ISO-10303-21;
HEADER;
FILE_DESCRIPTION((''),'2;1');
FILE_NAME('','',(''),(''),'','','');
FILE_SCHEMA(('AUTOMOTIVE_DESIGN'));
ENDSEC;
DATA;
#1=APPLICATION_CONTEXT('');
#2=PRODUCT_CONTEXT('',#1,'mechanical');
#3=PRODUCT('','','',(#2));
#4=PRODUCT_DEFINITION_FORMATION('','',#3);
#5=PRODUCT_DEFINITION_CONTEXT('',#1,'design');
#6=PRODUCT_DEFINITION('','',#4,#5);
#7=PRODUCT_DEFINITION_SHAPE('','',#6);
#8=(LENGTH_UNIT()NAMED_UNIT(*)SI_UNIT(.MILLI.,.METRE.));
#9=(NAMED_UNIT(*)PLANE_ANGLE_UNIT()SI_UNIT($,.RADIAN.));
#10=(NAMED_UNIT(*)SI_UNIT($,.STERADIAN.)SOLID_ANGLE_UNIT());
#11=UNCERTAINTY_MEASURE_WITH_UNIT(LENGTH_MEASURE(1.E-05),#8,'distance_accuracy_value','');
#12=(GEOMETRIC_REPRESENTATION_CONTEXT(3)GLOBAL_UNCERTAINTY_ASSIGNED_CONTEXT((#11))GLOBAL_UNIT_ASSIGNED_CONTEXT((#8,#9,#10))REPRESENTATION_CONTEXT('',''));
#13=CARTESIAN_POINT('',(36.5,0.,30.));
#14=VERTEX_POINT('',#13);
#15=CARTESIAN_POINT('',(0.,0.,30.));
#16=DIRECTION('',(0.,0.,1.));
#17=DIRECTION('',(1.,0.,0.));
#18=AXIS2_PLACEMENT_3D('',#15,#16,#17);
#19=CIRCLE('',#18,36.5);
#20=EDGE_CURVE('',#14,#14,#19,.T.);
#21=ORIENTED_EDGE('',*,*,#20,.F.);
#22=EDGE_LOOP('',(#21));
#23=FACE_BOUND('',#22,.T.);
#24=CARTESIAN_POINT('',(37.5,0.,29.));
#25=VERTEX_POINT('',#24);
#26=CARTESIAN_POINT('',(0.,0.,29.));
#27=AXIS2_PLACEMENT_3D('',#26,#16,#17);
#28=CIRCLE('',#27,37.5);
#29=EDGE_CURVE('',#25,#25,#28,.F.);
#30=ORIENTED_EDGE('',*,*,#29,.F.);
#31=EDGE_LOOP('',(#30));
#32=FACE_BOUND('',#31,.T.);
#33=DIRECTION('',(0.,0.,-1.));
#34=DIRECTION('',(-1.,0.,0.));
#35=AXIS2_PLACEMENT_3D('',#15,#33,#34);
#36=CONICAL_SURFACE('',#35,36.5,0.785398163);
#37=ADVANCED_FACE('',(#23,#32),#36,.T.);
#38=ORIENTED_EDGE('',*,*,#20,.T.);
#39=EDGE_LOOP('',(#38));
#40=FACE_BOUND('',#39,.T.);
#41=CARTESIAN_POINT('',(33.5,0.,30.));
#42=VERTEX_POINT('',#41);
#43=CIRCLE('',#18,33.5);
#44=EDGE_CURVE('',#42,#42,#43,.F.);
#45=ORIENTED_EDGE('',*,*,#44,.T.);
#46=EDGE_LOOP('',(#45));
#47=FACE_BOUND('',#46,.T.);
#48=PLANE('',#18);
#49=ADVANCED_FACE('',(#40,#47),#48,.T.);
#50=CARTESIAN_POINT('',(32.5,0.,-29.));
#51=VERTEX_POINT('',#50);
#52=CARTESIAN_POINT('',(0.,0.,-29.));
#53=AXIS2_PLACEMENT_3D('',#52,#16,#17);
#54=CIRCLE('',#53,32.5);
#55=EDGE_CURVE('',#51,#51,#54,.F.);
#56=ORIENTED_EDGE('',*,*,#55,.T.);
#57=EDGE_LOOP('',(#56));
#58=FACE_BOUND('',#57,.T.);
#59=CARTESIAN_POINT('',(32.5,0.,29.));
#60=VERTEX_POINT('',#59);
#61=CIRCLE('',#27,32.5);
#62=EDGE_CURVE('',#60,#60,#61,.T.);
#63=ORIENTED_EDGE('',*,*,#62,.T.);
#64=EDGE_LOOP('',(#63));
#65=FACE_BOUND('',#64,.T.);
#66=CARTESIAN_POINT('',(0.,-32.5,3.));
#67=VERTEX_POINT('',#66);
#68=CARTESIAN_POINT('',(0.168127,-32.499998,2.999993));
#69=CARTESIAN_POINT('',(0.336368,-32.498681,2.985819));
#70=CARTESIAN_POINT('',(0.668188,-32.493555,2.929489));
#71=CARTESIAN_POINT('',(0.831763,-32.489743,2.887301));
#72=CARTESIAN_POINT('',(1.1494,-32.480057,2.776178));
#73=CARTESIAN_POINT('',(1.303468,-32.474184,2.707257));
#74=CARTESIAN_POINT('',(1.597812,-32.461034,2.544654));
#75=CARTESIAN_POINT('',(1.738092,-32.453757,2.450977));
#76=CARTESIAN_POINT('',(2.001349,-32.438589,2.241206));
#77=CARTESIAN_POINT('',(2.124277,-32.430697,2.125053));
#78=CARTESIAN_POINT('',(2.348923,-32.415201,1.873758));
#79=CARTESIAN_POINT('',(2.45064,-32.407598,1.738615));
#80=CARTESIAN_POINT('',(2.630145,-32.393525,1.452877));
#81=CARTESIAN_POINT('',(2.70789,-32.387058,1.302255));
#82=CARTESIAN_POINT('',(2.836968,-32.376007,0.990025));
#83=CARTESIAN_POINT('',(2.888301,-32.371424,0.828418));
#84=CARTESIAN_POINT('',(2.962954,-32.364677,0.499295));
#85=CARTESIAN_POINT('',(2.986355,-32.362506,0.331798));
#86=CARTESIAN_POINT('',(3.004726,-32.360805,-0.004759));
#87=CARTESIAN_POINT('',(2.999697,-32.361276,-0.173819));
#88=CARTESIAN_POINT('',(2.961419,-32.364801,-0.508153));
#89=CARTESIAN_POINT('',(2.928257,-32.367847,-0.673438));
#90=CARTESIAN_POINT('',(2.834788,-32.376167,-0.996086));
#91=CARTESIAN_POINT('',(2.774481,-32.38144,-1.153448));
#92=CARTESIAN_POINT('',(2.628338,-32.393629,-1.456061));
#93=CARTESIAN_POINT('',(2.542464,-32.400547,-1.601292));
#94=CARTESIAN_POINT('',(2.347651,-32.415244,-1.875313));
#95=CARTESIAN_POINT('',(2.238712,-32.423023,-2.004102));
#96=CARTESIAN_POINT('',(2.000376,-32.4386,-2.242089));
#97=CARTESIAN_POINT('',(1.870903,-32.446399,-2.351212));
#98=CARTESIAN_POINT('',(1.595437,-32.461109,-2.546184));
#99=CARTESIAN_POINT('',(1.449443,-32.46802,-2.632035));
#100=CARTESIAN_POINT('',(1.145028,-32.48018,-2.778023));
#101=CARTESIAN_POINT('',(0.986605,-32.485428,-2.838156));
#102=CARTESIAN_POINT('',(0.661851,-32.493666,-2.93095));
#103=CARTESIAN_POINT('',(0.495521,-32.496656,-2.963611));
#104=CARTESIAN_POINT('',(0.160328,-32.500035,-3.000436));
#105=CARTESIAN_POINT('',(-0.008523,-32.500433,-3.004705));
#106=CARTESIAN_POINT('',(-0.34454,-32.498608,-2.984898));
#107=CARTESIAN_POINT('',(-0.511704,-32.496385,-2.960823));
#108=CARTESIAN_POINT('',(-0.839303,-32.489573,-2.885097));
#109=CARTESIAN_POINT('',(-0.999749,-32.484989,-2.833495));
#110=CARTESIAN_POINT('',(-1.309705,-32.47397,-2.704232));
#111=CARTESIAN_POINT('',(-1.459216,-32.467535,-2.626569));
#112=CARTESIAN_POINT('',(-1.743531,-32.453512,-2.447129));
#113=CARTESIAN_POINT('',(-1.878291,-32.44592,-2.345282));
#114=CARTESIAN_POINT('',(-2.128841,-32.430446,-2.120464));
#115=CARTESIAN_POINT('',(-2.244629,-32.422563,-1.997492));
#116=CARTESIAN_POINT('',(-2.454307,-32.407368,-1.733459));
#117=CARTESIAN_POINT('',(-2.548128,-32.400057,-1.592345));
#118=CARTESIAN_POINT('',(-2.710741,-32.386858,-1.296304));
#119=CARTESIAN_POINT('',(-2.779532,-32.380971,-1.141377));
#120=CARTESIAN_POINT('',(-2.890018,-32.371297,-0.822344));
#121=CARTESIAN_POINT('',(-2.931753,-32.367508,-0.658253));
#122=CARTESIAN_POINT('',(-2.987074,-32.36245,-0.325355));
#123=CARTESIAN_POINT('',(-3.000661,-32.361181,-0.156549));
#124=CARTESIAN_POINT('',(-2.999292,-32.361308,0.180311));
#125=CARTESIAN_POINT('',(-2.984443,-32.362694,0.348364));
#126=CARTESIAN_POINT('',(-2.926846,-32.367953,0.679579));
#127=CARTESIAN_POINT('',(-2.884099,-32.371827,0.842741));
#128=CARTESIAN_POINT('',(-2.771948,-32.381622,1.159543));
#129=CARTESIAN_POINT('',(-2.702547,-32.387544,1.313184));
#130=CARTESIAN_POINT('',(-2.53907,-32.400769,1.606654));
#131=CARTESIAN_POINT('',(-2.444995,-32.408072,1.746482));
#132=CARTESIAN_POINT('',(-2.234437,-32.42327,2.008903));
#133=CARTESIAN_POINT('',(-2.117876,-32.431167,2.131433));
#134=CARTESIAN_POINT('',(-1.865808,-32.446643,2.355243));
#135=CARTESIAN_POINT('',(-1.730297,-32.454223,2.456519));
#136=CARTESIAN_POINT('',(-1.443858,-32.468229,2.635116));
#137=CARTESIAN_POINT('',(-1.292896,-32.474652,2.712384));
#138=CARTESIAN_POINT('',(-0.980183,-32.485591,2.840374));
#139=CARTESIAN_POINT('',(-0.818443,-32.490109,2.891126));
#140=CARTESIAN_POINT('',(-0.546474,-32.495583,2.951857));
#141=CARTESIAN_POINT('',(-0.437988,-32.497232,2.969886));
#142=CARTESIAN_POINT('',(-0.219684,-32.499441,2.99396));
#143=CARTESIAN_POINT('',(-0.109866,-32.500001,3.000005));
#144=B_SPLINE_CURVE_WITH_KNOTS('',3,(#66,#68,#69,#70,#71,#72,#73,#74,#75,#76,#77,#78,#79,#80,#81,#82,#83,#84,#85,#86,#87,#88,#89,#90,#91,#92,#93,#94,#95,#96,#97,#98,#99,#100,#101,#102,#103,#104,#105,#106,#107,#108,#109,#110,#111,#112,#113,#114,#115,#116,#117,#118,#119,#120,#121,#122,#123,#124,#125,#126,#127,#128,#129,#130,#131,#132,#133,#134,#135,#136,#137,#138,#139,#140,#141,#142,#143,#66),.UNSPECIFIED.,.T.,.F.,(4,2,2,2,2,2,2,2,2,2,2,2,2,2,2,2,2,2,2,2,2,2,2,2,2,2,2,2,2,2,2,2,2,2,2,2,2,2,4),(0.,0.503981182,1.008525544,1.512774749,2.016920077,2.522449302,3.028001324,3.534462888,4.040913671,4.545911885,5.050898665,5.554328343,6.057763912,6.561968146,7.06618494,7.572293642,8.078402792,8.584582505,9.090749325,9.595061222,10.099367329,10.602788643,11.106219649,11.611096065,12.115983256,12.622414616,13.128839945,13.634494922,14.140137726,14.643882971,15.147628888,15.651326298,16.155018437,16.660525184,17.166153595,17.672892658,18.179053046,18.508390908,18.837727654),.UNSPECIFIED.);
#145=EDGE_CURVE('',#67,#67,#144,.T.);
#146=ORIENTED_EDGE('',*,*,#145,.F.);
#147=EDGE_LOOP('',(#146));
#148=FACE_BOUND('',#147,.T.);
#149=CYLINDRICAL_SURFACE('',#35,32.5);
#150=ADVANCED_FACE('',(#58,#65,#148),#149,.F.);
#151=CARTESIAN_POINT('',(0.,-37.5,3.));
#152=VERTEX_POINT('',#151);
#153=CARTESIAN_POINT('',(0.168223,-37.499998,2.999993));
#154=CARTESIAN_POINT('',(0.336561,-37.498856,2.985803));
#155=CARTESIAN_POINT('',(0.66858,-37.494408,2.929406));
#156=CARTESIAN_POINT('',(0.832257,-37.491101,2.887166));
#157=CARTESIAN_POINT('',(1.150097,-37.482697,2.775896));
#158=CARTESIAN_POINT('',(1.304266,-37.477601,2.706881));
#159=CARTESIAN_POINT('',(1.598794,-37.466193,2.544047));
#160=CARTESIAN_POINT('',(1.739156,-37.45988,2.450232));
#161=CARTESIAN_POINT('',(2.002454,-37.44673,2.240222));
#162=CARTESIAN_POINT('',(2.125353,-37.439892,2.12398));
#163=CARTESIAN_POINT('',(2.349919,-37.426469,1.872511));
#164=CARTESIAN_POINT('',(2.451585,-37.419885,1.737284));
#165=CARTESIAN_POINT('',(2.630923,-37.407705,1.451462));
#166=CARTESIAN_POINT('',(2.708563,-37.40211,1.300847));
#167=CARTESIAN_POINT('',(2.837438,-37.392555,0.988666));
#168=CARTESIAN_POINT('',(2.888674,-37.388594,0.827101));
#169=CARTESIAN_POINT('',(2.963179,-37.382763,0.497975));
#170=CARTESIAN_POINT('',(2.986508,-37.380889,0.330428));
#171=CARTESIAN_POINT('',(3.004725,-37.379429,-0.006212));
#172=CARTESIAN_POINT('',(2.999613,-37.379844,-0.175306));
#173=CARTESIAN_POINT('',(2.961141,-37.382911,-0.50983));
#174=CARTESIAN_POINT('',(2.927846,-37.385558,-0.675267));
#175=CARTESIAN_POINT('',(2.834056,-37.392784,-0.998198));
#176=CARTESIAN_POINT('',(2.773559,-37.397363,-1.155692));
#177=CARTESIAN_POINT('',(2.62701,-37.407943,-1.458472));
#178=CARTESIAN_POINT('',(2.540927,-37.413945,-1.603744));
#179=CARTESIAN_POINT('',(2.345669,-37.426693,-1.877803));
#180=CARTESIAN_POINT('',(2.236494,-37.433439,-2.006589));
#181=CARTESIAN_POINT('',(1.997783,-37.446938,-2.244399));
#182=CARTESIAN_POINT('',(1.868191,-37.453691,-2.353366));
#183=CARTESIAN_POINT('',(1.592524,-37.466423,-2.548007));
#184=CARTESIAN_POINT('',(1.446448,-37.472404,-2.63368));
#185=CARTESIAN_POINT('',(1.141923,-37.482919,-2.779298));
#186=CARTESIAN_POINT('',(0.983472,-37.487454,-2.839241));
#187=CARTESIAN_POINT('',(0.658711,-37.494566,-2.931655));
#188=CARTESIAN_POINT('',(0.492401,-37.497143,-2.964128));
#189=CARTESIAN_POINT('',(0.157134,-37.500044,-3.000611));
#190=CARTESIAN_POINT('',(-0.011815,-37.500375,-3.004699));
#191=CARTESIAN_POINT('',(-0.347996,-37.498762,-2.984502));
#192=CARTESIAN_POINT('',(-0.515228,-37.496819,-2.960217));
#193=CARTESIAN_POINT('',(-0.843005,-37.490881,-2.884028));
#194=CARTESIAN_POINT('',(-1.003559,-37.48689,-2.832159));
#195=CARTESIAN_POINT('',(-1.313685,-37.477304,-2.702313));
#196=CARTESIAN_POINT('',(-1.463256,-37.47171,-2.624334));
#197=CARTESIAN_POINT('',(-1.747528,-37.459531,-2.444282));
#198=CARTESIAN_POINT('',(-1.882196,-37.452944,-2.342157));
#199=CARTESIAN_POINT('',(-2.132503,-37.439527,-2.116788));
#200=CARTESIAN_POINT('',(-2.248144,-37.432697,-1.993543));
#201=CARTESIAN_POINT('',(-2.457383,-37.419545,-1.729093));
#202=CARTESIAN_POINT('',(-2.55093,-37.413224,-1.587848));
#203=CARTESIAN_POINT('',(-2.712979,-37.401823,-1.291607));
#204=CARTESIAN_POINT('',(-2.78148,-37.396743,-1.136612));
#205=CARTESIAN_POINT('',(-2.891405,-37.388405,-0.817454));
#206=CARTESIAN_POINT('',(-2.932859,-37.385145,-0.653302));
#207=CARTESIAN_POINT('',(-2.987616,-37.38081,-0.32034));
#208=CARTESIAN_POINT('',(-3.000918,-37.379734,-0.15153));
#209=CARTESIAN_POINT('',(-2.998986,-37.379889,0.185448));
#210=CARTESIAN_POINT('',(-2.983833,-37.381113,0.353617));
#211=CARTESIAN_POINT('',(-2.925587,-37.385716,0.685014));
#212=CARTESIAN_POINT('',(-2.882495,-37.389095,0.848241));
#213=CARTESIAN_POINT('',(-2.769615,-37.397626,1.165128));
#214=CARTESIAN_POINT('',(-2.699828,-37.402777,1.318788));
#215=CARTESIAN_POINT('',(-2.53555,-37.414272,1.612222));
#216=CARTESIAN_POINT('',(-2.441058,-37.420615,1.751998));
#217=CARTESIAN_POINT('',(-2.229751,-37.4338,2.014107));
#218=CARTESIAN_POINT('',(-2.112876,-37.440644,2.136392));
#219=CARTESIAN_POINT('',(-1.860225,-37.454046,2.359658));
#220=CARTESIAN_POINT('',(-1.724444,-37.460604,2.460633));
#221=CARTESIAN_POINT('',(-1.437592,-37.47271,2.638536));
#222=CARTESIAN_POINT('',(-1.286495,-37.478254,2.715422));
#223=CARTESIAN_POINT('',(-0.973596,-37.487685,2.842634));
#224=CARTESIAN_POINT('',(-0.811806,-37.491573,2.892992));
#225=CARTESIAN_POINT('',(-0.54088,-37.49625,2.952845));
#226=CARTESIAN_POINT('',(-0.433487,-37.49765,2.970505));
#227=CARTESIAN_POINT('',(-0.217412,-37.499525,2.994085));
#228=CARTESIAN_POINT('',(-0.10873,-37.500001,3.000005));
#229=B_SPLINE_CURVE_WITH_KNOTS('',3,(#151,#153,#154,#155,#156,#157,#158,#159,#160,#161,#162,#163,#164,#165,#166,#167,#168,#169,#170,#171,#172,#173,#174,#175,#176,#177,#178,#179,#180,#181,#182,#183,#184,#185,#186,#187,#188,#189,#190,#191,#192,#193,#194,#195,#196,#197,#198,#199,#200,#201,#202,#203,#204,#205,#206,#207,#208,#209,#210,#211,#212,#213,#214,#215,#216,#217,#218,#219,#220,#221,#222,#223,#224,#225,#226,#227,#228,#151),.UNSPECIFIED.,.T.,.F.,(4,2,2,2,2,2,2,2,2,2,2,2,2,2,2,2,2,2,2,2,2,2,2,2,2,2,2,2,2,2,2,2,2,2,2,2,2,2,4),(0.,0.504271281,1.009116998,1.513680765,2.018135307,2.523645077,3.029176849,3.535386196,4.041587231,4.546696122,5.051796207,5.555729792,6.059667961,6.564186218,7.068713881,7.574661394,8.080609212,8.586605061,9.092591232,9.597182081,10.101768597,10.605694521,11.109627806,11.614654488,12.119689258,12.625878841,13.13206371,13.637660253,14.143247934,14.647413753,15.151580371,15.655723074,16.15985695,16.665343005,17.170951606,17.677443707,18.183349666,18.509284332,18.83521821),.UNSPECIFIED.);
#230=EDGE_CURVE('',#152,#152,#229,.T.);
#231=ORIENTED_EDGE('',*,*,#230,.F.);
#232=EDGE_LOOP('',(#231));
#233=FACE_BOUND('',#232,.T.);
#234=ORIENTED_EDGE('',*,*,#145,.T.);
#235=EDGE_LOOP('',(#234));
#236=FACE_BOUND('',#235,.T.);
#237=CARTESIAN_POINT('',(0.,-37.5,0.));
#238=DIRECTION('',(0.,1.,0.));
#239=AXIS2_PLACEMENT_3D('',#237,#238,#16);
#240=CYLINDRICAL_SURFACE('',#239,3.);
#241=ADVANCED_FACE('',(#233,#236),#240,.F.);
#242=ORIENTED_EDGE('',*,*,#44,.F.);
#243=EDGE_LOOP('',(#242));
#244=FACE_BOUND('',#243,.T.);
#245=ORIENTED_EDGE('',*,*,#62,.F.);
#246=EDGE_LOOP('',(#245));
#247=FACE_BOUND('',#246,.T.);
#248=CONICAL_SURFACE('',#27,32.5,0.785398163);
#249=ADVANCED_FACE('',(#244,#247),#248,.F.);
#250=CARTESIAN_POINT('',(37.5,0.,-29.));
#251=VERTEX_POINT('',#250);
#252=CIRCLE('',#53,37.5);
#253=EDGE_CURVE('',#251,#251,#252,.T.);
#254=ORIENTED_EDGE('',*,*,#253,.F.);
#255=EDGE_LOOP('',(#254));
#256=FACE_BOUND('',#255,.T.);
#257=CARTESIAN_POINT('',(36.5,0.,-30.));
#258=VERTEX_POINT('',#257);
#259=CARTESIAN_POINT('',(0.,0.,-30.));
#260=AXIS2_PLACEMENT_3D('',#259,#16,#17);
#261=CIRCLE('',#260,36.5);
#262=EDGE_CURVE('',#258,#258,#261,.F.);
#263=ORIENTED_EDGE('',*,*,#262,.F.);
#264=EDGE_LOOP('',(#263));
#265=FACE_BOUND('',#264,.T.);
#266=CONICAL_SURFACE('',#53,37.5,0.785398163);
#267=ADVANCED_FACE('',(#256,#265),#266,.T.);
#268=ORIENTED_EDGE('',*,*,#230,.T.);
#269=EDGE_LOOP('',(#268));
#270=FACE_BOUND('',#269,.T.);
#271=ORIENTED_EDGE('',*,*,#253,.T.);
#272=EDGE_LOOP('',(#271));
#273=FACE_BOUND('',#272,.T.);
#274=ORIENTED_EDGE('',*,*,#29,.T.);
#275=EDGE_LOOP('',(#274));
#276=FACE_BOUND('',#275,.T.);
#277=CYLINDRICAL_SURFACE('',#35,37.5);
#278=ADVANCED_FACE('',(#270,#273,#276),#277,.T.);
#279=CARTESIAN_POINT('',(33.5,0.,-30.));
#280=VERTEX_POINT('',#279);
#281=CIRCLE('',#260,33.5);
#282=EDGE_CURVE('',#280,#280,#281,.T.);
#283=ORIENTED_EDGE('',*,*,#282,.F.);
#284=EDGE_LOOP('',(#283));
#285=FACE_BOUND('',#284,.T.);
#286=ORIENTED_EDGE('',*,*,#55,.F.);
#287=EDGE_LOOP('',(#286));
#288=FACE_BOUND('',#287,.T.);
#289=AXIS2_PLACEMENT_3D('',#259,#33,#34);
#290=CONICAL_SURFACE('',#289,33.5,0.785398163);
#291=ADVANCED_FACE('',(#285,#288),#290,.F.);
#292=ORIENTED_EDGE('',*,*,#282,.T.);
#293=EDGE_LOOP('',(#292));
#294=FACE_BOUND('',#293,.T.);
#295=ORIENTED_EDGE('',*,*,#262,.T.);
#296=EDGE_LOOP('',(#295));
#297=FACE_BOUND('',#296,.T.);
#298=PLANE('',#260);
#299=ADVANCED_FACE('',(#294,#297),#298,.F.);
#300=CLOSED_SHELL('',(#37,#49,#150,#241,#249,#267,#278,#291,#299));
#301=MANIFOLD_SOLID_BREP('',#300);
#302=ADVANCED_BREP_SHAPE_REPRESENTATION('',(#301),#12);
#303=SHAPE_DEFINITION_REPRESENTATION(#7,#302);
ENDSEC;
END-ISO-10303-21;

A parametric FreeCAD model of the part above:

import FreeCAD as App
import Part
import Sketcher

V = App.Vector


def edges_at(feature, points):
    """Names of the edges that pass closest to the given points."""
    edges = feature.Shape.Edges
    near = lambda p: min(range(len(edges)), key=lambda i: edges[i].distToShape(Part.Vertex(*p))[0])
    return sorted({f"Edge{near(p) + 1}" for p in points})

doc = App.newDocument("Part")
body = doc.addObject("PartDesign::Body", "Body")

sketch1 = body.newObject("Sketcher::SketchObject", "Sketch")
sketch1.AttachmentSupport = (doc.getObject("XY_Plane"), [""])
sketch1.MapMode = "FlatFace"
sketch1.addGeometry([
    Part.Circle(V(0, 0, 0), V(0, 0, 1), 38),
    Part.Circle(V(0, 0, 0), V(0, 0, 1), 32),
], False)
sketch1.addConstraint([
    Sketcher.Constraint("Coincident", 0, 3, -1, 1),
    Sketcher.Constraint("Coincident", 1, 3, -1, 1),
    Sketcher.Constraint("Diameter", 0, 75.0),
    Sketcher.Constraint("Diameter", 1, 65.0),
])
pad1 = body.newObject("PartDesign::Pad", "Pad")
pad1.Profile = sketch1
pad1.Length = 60
pad1.Midplane = True
doc.recompute()

chamfer = body.newObject("PartDesign::Chamfer", "Chamfer")
chamfer.Base = (pad1, edges_at(pad1, [
    (-37.5, 0, -30),
    (-37.5, 0, 30),
    (-32.5, 0, -30),
    (-32.5, 0, 30),
]))
chamfer.Size = 1

sketch2 = body.newObject("Sketcher::SketchObject", "Sketch001")
sketch2.AttachmentSupport = (doc.getObject("XZ_Plane"), [""])
sketch2.MapMode = "FlatFace"
sketch2.addGeometry(Part.Circle(V(0, 0, 0), V(0, 0, 1), 3), False)
sketch2.addConstraint([
    Sketcher.Constraint("Coincident", 0, 3, -1, 1),
    Sketcher.Constraint("Diameter", 0, 6.0),
])
pocket1 = body.newObject("PartDesign::Pocket", "Pocket")
pocket1.Profile = sketch2
pocket1.Type = "ThroughAll"
pocket1.Reversed = True

doc.recompute()
